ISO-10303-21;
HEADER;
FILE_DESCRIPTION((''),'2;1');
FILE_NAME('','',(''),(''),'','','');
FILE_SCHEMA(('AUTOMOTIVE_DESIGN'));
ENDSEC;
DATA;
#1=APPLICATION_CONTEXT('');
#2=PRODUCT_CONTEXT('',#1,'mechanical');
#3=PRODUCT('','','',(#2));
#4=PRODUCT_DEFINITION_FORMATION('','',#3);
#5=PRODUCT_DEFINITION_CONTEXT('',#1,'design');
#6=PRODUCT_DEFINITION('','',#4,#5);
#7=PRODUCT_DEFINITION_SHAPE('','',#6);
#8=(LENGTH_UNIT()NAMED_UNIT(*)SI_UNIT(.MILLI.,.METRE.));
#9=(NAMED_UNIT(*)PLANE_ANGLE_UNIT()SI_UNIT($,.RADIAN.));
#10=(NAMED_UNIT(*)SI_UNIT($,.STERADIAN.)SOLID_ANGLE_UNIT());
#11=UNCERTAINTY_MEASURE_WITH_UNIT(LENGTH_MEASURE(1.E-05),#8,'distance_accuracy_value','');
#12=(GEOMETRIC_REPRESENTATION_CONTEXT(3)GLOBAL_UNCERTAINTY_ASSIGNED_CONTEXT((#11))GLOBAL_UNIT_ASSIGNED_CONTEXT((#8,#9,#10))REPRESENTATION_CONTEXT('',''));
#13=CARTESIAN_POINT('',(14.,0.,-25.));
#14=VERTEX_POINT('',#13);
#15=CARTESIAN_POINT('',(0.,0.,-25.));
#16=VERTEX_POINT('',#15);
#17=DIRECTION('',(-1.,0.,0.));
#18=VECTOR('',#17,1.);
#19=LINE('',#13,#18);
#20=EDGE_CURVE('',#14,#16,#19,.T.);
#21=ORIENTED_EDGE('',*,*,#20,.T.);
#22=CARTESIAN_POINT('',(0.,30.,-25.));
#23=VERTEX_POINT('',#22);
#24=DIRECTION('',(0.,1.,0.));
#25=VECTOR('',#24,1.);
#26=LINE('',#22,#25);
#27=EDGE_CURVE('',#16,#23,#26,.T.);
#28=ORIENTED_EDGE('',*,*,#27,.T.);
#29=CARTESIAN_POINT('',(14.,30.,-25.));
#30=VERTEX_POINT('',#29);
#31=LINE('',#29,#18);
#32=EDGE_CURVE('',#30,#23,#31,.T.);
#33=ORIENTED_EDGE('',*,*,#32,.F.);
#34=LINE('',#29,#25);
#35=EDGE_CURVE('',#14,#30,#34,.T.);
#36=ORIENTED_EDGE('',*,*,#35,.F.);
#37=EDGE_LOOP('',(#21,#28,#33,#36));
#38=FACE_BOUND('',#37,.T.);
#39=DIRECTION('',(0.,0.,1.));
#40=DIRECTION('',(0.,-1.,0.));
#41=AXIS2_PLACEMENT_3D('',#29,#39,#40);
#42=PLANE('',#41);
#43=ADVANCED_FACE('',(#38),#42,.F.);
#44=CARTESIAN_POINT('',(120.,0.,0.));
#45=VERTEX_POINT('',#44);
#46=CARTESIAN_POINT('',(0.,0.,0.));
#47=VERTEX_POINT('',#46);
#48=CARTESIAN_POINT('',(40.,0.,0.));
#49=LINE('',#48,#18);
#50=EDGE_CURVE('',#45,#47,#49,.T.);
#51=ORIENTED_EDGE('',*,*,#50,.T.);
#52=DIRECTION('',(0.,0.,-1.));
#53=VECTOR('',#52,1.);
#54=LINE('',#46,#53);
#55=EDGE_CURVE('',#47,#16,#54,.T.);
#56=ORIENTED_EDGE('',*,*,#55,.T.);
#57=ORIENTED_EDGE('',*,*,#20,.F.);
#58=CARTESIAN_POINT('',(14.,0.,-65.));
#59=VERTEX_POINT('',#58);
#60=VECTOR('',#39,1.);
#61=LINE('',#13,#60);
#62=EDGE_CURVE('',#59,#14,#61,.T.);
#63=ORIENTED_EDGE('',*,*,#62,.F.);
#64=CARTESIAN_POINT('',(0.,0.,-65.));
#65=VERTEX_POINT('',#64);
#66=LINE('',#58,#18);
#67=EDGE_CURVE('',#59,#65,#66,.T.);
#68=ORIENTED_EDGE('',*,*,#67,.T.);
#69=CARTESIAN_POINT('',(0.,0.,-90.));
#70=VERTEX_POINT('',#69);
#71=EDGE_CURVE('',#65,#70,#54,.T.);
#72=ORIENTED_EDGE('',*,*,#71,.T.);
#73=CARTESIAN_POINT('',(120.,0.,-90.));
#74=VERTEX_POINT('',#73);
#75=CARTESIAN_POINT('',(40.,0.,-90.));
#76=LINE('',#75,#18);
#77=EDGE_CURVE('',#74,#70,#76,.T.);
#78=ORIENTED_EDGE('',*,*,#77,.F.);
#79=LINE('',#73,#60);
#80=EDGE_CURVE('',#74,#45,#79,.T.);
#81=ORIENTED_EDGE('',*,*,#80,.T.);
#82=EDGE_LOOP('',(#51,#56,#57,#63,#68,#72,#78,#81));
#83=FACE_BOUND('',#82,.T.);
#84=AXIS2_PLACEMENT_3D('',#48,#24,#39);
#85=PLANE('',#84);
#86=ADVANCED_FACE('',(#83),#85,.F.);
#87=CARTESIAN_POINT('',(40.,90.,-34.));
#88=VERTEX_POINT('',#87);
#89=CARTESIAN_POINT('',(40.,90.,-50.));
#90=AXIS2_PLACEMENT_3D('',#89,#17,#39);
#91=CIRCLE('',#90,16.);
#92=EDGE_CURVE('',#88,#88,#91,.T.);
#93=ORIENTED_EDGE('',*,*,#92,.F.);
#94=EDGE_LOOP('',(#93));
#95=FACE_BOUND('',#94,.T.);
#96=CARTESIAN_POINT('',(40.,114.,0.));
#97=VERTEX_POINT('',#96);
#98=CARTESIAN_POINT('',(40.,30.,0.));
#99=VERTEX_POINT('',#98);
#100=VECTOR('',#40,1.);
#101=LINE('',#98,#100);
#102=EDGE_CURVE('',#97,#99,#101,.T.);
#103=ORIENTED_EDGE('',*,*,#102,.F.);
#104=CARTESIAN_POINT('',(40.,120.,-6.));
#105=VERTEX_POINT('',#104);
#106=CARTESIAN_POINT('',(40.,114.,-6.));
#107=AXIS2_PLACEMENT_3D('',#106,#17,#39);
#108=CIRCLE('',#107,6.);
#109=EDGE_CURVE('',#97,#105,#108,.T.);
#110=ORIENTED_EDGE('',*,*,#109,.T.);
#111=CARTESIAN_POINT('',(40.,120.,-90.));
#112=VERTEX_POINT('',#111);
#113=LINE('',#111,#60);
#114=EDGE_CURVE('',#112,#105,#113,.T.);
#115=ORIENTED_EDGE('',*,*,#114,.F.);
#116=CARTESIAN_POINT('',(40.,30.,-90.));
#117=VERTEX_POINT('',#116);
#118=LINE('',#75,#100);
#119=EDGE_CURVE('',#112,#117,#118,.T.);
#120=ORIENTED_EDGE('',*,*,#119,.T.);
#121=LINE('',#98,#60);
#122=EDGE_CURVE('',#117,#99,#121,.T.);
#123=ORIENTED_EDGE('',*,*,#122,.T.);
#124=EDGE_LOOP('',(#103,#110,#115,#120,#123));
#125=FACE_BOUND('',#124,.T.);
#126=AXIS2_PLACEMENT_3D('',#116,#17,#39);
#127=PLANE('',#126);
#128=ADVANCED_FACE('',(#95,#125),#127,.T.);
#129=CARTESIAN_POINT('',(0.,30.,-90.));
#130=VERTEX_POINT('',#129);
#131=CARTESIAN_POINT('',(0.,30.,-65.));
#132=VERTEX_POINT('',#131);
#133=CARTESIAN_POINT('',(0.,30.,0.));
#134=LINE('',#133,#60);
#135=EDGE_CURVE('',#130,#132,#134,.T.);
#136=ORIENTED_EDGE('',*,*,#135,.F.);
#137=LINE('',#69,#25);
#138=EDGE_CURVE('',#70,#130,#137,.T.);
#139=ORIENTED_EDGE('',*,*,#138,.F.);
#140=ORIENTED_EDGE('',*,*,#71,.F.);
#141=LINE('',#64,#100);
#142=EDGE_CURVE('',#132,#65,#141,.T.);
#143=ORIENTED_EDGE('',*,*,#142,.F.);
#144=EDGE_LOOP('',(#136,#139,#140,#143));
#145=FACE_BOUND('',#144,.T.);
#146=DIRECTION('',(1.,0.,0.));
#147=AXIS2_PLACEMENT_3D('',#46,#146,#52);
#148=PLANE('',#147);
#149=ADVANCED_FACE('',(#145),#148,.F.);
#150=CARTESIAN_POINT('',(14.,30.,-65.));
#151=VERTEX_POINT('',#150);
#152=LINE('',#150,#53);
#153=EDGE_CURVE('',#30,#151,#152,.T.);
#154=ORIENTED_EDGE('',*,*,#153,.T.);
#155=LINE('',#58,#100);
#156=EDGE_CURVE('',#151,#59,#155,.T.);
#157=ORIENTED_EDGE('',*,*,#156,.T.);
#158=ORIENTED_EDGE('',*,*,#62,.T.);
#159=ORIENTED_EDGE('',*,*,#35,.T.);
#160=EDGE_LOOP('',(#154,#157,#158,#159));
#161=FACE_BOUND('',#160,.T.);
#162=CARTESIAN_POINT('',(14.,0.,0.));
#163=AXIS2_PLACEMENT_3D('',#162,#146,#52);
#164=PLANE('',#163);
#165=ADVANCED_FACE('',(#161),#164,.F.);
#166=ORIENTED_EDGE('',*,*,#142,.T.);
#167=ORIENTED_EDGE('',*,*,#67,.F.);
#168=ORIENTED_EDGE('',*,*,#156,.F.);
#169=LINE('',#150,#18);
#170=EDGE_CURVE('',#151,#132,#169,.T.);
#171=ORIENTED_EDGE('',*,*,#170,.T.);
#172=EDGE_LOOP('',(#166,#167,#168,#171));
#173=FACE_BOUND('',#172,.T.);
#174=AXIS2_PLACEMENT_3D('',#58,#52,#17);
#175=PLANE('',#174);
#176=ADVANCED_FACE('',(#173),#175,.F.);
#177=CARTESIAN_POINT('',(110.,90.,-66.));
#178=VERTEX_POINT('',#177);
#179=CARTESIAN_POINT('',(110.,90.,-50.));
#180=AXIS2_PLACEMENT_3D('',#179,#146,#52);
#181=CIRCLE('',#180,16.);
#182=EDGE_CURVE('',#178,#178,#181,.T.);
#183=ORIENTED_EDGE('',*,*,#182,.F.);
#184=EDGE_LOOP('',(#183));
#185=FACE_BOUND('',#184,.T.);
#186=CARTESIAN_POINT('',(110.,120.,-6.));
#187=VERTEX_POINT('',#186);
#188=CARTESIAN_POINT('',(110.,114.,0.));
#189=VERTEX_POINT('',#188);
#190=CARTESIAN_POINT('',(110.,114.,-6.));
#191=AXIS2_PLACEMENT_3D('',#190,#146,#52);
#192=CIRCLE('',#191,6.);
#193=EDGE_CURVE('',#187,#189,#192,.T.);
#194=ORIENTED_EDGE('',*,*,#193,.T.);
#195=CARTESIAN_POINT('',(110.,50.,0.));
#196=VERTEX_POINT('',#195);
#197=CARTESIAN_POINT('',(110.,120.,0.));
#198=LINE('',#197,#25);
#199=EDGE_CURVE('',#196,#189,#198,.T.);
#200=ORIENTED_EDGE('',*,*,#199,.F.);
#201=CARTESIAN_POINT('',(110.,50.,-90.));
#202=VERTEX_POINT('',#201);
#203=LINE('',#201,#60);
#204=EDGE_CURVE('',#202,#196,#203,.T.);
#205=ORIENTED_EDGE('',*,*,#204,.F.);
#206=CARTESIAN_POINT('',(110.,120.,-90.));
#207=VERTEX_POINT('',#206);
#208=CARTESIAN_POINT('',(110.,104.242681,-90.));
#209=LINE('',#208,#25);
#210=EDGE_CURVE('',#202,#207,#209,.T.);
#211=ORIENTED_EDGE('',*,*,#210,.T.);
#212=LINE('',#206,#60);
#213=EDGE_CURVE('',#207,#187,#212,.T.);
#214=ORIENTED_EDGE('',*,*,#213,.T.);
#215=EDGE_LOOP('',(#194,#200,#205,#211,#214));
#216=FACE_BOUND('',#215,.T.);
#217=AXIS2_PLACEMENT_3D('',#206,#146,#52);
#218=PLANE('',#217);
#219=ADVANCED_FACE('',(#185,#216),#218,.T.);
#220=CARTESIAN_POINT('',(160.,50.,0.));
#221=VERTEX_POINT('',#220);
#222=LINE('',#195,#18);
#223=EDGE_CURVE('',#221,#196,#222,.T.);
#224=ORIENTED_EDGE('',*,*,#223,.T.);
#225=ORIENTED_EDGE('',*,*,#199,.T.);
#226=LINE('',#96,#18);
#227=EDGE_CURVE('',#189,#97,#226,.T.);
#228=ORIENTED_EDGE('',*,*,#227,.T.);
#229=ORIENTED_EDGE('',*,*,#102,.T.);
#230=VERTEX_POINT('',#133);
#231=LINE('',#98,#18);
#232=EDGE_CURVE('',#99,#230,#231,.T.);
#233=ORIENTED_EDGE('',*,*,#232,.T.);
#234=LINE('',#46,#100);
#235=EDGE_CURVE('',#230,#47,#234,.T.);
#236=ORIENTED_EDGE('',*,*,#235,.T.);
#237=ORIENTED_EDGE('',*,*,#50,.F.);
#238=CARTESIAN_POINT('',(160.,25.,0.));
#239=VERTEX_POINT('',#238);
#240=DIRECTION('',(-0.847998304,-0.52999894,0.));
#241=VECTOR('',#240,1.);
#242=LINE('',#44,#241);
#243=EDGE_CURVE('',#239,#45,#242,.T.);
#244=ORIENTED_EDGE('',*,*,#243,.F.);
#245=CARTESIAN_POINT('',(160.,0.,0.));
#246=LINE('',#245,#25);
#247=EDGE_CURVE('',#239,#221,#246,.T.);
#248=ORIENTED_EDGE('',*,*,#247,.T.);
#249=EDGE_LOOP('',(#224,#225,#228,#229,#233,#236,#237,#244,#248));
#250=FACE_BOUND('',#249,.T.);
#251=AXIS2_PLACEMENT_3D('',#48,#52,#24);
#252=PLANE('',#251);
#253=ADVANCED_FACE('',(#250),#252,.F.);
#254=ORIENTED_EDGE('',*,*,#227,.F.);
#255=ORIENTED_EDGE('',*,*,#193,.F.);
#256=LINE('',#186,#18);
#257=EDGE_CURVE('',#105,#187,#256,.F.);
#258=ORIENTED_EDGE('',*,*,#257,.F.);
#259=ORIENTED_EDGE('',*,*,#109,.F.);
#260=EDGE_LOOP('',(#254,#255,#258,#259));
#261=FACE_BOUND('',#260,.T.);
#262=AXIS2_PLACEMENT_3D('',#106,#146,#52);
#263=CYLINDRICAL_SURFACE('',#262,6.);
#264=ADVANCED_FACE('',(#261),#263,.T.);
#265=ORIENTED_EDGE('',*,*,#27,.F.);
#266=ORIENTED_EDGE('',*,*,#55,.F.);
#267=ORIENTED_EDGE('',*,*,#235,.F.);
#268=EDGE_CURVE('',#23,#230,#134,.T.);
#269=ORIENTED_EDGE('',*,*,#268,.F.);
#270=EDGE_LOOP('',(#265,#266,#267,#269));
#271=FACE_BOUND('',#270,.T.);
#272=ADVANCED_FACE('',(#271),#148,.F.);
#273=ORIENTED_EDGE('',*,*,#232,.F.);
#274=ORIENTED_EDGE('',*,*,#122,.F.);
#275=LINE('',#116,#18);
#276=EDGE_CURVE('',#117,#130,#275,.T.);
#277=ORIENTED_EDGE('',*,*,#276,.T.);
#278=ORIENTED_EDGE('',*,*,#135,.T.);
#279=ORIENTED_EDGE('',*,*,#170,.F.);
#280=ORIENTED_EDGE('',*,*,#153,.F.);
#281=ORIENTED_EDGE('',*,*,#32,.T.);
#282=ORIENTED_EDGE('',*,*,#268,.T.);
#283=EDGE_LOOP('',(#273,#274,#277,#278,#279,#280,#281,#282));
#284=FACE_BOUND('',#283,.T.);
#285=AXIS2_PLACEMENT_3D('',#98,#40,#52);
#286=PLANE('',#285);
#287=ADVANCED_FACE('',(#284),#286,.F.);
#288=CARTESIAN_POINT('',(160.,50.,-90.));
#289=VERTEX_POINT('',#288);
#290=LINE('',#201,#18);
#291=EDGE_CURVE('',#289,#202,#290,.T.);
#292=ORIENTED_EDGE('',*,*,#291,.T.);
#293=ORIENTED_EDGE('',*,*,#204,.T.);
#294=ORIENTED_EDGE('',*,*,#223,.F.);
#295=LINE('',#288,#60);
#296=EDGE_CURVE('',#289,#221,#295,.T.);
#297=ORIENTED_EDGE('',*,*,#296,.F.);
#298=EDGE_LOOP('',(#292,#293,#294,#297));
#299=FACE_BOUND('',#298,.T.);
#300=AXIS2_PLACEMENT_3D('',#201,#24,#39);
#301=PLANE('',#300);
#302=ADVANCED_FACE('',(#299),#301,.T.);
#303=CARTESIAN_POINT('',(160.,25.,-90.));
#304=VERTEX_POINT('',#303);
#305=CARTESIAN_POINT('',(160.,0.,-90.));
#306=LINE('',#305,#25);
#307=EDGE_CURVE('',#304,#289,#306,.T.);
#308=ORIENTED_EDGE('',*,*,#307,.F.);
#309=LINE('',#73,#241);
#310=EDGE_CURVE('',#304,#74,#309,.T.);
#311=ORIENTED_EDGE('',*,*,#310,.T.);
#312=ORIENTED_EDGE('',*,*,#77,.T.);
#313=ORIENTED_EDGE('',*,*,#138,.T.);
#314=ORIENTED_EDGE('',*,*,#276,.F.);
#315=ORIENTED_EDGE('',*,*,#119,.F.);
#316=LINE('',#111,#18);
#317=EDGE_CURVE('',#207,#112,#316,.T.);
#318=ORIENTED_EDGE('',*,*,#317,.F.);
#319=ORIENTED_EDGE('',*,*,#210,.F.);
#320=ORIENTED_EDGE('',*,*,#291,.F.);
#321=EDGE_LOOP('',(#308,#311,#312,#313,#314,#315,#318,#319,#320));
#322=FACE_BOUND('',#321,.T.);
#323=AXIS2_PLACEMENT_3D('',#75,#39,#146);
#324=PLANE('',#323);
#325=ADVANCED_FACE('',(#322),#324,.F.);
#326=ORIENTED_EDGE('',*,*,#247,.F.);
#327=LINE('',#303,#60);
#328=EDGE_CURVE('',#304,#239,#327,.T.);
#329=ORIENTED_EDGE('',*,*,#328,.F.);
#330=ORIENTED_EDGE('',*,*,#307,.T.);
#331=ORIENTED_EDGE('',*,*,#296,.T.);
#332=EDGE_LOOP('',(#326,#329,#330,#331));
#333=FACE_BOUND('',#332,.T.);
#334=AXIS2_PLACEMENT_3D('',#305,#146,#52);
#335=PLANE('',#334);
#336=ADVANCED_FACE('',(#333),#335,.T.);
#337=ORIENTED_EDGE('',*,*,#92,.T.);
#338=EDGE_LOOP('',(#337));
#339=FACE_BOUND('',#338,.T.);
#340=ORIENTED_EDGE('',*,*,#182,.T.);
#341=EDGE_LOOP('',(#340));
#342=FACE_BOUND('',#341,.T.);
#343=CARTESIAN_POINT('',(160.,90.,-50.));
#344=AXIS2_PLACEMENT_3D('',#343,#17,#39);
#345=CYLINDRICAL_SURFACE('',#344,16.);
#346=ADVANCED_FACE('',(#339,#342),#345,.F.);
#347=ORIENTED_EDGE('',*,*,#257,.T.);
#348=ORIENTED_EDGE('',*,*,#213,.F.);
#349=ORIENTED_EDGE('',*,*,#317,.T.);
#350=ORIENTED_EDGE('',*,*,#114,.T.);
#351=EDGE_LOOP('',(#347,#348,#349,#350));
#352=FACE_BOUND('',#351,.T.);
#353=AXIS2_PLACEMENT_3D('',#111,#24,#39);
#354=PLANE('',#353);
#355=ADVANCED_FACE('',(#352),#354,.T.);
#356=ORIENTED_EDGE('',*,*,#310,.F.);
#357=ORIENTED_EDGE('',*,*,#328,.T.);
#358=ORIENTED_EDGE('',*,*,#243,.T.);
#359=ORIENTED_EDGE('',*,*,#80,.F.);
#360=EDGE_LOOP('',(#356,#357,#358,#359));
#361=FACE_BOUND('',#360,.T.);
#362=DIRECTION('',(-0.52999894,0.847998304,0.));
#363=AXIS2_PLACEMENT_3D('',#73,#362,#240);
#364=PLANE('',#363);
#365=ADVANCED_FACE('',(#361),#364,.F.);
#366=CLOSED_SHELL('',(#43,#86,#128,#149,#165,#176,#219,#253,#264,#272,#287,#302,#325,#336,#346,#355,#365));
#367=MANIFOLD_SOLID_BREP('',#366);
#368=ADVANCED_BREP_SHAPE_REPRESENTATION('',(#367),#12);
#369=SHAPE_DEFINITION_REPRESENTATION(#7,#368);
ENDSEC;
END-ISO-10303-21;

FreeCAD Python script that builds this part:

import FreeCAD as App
import Part
import Sketcher
from FreeCAD import Vector


def edges_at(feature, points):
    """Names of the edges that pass closest to the given points."""
    edges = feature.Shape.Edges
    near = lambda p: min(range(len(edges)), key=lambda i: edges[i].distToShape(Part.Vertex(*p))[0])
    return sorted({f"Edge{near(p) + 1}" for p in points})


def add_polygon(sketch, points):
    """Adds a closed chain of lines whose ends are joined by coincident constraints."""
    first, n = sketch.GeometryCount, len(points)
    for a, b in zip(points, points[1:] + points[:1]):
        sketch.addGeometry(Part.LineSegment(App.Vector(*a, 0), App.Vector(*b, 0)), False)
    for i in range(n):
        sketch.addConstraint(Sketcher.Constraint("Coincident", first + i, 2, first + (i + 1) % n, 1))

doc = App.newDocument("Part")
body = doc.addObject("PartDesign::Body", "Body")

sketch1 = body.newObject("Sketcher::SketchObject", "Sketch")
sketch1.AttachmentSupport = (doc.getObject("YZ_Plane"), [""])
sketch1.MapMode = "FlatFace"
add_polygon(sketch1, [(30, 0), (0, 0), (0, -90), (30, -90)])
sketch1.addConstraint(Sketcher.Constraint("Horizontal", 0))
sketch1.addConstraint(Sketcher.Constraint("Vertical", 1))
sketch1.addConstraint(Sketcher.Constraint("Horizontal", 2))
sketch1.addConstraint(Sketcher.Constraint("Vertical", 3))
sketch1.addConstraint(Sketcher.Constraint("Coincident", 0, 2, -1, 1))
sketch1.addConstraint(Sketcher.Constraint("DistanceX", 0, 2, 0, 1, 30.0))
sketch1.addConstraint(Sketcher.Constraint("DistanceY", 1, 2, 1, 1, 90.0))
pad1 = body.newObject("PartDesign::Pad", "Pad")
pad1.Profile = sketch1
pad1.Length = 40

sketch2 = body.newObject("Sketcher::SketchObject", "Sketch001")
sketch2.AttachmentSupport = (doc.getObject("XY_Plane"), [""])
sketch2.MapMode = "FlatFace"
add_polygon(sketch2, [(40, 120), (40, 0), (160, 0), (160, 50), (110, 50), (110, 120)])
sketch2.addConstraint(Sketcher.Constraint("Vertical", 0))
sketch2.addConstraint(Sketcher.Constraint("Horizontal", 1))
sketch2.addConstraint(Sketcher.Constraint("Vertical", 2))
sketch2.addConstraint(Sketcher.Constraint("Horizontal", 3))
sketch2.addConstraint(Sketcher.Constraint("Vertical", 4))
sketch2.addConstraint(Sketcher.Constraint("Horizontal", 5))
sketch2.addConstraint(Sketcher.Constraint("PointOnObject", 0, 2, -1))
sketch2.addConstraint(Sketcher.Constraint("Equal", 1, 0))
sketch2.addConstraint(Sketcher.Constraint("Equal", 3, 2))
sketch2.addConstraint(Sketcher.Constraint("DistanceX", 1, 1, 1, 2, 120.0))
sketch2.addConstraint(Sketcher.Constraint("DistanceX", 3, 2, 3, 1, 50.0))
sketch2.addConstraint(Sketcher.Constraint("DistanceX", -1, 1, 0, 2, 40.0))
pad2 = body.newObject("PartDesign::Pad", "Pad001")
pad2.Profile = sketch2
pad2.Length = 90
pad2.Reversed = True

sketch3 = body.newObject("Sketcher::SketchObject", "Sketch002")
sketch3.AttachmentSupport = (doc.getObject("YZ_Plane"), [""])
sketch3.MapMode = "FlatFace"
sketch3.AttachmentOffset = App.Placement(Vector(0, 0, 40), App.Rotation())
sketch3.addGeometry(Part.Circle(Vector(90, -50, 0), Vector(0, 0, 1), 16), False)
sketch3.addConstraint(Sketcher.Constraint("Diameter", 0, 32.0))
sketch3.addConstraint(Sketcher.Constraint("DistanceX", -1, 1, 0, 3, 90.0))
sketch3.addConstraint(Sketcher.Constraint("DistanceY", 0, 3, -1, 1, 50.0))
pocket1 = body.newObject("PartDesign::Pocket", "Pocket")
pocket1.Profile = sketch3
pocket1.Type = "ThroughAll"
pocket1.Reversed = True
doc.recompute()

fillet = body.newObject("PartDesign::Fillet", "Fillet")
fillet.Base = (pocket1, edges_at(pocket1, [(75, 120, 0)]))
fillet.Radius = 6

sketch4 = body.newObject("Sketcher::SketchObject", "Sketch003")
sketch4.AttachmentSupport = (doc.getObject("YZ_Plane"), [""])
sketch4.MapMode = "FlatFace"
add_polygon(sketch4, [(30, -65), (0, -65), (0, -25), (30, -25)])
sketch4.addConstraint(Sketcher.Constraint("Horizontal", 0))
sketch4.addConstraint(Sketcher.Constraint("Vertical", 1))
sketch4.addConstraint(Sketcher.Constraint("Horizontal", 2))
sketch4.addConstraint(Sketcher.Constraint("Vertical", 3))
sketch4.addConstraint(Sketcher.Constraint("PointOnObject", 0, 2, -2))
sketch4.addConstraint(Sketcher.Constraint("DistanceX", 0, 2, 0, 1, 30.0))
sketch4.addConstraint(Sketcher.Constraint("DistanceY", 1, 1, 1, 2, 40.0))
sketch4.addConstraint(Sketcher.Constraint("DistanceY", 0, 2, -1, 1, 65.0))
pocket2 = body.newObject("PartDesign::Pocket", "Pocket001")
pocket2.Profile = sketch4
pocket2.Length = 14
pocket2.Reversed = True

sketch5 = body.newObject("Sketcher::SketchObject", "Sketch004")
sketch5.AttachmentSupport = (doc.getObject("XY_Plane"), [""])
sketch5.MapMode = "FlatFace"
add_polygon(sketch5, [(160, 25), (120, 0), (160, 0)])
sketch5.addConstraint(Sketcher.Constraint("Horizontal", 1))
sketch5.addConstraint(Sketcher.Constraint("Vertical", 2))
sketch5.addConstraint(Sketcher.Constraint("PointOnObject", 0, 2, -1))
sketch5.addConstraint(Sketcher.Constraint("DistanceX", 1, 1, 1, 2, 40.0))
sketch5.addConstraint(Sketcher.Constraint("DistanceY", 2, 1, 2, 2, 25.0))
sketch5.addConstraint(Sketcher.Constraint("DistanceX", -1, 1, 0, 2, 120.0))
pocket3 = body.newObject("PartDesign::Pocket", "Pocket002")
pocket3.Profile = sketch5
pocket3.Type = "ThroughAll"

doc.recompute()
